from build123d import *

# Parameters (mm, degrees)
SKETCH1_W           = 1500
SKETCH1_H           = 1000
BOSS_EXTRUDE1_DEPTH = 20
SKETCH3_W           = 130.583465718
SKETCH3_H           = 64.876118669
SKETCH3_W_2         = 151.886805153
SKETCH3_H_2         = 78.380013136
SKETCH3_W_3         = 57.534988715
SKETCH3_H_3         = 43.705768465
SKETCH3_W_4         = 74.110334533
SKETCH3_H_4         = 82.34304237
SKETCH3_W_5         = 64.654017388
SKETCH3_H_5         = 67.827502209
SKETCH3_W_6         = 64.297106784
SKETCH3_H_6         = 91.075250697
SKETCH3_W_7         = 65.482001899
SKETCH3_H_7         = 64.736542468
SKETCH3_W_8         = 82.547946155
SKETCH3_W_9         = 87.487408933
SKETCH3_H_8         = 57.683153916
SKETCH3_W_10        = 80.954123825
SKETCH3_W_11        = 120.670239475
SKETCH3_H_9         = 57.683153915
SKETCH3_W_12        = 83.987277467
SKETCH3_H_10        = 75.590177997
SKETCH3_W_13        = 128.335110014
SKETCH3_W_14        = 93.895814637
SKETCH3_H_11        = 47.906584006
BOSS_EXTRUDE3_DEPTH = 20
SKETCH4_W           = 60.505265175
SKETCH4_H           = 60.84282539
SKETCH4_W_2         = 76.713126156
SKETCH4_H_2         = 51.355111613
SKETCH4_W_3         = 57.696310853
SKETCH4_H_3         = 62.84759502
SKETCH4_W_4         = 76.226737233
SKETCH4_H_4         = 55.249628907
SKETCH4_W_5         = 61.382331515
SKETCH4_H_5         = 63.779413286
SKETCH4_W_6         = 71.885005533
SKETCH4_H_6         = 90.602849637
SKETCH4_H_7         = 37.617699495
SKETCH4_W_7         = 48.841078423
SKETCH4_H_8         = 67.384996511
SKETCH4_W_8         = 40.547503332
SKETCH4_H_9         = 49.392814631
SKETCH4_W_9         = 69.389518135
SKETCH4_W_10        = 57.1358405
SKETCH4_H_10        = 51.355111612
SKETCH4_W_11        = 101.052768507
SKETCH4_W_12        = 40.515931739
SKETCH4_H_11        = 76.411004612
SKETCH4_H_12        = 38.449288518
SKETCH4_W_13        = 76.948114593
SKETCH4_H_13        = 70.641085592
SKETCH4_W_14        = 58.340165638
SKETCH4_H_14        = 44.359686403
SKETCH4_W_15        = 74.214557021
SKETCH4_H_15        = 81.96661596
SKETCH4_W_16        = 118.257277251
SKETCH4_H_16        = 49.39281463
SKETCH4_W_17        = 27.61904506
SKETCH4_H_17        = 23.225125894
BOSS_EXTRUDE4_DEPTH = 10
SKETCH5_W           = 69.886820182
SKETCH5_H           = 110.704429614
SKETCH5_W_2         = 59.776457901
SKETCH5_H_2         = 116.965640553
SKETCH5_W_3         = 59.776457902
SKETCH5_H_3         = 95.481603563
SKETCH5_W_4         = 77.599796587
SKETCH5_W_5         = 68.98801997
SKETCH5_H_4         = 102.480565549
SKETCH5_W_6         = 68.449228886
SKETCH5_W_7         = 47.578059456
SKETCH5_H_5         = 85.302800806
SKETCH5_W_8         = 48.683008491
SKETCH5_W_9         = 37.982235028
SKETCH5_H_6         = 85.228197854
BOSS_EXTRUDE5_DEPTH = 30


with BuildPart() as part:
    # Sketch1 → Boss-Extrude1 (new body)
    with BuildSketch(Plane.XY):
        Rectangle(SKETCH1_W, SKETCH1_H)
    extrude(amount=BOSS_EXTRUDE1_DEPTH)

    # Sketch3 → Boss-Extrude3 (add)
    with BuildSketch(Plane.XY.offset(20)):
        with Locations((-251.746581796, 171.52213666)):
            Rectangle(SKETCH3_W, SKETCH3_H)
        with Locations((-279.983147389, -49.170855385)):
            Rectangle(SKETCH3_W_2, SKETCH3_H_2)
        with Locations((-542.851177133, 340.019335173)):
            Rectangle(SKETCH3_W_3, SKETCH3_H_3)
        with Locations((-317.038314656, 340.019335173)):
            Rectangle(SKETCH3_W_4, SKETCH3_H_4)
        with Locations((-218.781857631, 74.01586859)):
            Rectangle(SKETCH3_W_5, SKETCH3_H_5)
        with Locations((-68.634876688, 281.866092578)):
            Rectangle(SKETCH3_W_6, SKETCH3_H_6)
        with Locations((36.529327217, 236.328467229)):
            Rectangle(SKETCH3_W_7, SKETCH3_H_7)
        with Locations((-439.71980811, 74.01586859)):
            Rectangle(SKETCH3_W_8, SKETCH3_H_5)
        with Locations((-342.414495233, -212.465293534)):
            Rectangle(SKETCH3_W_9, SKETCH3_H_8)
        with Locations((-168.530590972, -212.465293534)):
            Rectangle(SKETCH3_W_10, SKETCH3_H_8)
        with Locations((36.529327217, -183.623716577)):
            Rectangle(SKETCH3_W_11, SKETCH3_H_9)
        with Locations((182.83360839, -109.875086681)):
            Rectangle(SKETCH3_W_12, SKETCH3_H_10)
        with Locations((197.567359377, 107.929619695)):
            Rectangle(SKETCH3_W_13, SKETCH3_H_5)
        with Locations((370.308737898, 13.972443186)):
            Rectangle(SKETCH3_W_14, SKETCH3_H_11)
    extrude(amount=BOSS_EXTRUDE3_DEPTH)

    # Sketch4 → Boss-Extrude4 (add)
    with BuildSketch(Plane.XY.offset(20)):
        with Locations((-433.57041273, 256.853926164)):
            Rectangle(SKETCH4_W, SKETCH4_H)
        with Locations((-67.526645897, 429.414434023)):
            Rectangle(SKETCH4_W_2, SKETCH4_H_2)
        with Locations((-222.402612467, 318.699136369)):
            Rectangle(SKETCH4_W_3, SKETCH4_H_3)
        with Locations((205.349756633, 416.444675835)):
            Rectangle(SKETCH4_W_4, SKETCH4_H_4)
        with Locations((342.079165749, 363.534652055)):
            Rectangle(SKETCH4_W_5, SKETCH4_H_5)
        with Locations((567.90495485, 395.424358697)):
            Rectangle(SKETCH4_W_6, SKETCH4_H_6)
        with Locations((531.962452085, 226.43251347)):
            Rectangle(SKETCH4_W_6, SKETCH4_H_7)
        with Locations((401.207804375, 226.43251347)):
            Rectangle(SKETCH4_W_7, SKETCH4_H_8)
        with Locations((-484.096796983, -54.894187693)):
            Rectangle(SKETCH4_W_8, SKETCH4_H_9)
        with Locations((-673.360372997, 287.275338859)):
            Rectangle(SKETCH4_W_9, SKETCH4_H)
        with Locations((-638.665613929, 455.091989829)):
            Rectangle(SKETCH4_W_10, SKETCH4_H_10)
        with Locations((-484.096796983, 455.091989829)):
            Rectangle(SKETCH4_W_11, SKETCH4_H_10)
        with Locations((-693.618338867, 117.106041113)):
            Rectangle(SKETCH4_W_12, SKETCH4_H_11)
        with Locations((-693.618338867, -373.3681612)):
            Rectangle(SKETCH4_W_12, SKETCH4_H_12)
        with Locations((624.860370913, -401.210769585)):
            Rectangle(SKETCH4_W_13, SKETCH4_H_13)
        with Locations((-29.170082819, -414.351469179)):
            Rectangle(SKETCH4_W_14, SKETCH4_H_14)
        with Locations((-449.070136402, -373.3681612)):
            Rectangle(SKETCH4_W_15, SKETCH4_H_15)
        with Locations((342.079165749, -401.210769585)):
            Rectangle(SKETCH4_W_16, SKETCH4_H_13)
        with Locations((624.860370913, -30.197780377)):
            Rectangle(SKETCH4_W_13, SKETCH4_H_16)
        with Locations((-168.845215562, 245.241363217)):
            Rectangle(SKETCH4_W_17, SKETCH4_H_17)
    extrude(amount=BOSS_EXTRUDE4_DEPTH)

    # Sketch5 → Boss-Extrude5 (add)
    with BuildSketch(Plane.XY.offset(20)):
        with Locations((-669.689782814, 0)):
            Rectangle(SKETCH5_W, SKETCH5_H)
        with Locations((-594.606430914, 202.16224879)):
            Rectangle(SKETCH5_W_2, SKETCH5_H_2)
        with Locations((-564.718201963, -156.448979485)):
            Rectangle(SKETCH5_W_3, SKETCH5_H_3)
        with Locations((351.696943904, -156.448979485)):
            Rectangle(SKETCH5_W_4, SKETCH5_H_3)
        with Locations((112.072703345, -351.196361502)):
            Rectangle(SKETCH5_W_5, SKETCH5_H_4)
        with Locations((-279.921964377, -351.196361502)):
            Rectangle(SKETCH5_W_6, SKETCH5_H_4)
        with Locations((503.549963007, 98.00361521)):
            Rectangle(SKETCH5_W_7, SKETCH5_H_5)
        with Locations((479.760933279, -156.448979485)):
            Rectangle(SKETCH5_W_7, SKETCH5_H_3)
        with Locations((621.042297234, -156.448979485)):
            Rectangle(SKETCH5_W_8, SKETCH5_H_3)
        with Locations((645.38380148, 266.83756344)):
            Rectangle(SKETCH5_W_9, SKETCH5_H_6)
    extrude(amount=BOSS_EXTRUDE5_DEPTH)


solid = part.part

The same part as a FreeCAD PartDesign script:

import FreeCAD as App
import Part
import Sketcher

V = App.Vector
Q = App.Units.Quantity


def add_polygon(sketch, points):
    """Adds a closed chain of lines whose ends are joined by coincident constraints."""
    first, n = sketch.GeometryCount, len(points)
    for a, b in zip(points, points[1:] + points[:1]):
        sketch.addGeometry(Part.LineSegment(App.Vector(*a, 0), App.Vector(*b, 0)), False)
    for i in range(n):
        sketch.addConstraint(Sketcher.Constraint("Coincident", first + i, 2, first + (i + 1) % n, 1))

doc = App.newDocument("Part")
body = doc.addObject("PartDesign::Body", "Body")

sketch1 = body.newObject("Sketcher::SketchObject", "Sketch")
sketch1.AttachmentSupport = (doc.getObject("XY_Plane"), [""])
sketch1.MapMode = "FlatFace"
add_polygon(sketch1, [(-750, 500), (-750, -500), (750, -500), (750, 500)])
sketch1.addConstraint(Sketcher.Constraint("Vertical", 0))
sketch1.addConstraint(Sketcher.Constraint("Horizontal", 1))
sketch1.addConstraint(Sketcher.Constraint("Vertical", 2))
sketch1.addConstraint(Sketcher.Constraint("Horizontal", 3))
sketch1.addConstraint(Sketcher.Constraint("Symmetric", 0, 2, 2, 2, -1, 1))
sketch1.addConstraint(Sketcher.Constraint("DistanceX", 1, 1, 1, 2, Q("1500 mm")))
sketch1.addConstraint(Sketcher.Constraint("DistanceY", 0, 2, 0, 1, Q("1000 mm")))
pad1 = body.newObject("PartDesign::Pad", "Pad")
pad1.Profile = sketch1
pad1.Length = 20

sketch2 = body.newObject("Sketcher::SketchObject", "Sketch001")
sketch2.AttachmentSupport = (doc.getObject("XY_Plane"), [""])
sketch2.MapMode = "FlatFace"
sketch2.AttachmentOffset = App.Placement(V(0, 0, 20), App.Rotation())
add_polygon(sketch2, [(-317, 204), (-317, 139), (-186, 139), (-186, 204)])
add_polygon(sketch2, [(-356, -10), (-356, -88), (-204, -88), (-204, -10)])
add_polygon(sketch2, [(-572, 362), (-572, 318), (-514, 318), (-514, 362)])
add_polygon(sketch2, [(-354, 381), (-354, 299), (-280, 299), (-280, 381)])
add_polygon(sketch2, [(-251, 108), (-251, 40), (-186, 40), (-186, 108)])
add_polygon(sketch2, [(-101, 327), (-101, 236), (-36, 236), (-36, 327)])
add_polygon(sketch2, [(4, 269), (4, 204), (69, 204), (69, 269)])
add_polygon(sketch2, [(-481, 108), (-481, 40), (-398, 40), (-398, 108)])
add_polygon(sketch2, [(-386, -184), (-386, -241), (-299, -241), (-299, -184)])
add_polygon(sketch2, [(-209, -184), (-209, -241), (-128, -241), (-128, -184)])
add_polygon(sketch2, [(-24, -155), (-24, -212), (97, -212), (97, -155)])
add_polygon(sketch2, [(141, -72), (141, -148), (225, -148), (225, -72)])
add_polygon(sketch2, [(133, 142), (133, 74), (262, 74), (262, 142)])
add_polygon(sketch2, [(323, 38), (323, -10), (417, -10), (417, 38)])
sketch2.addConstraint(Sketcher.Constraint("Vertical", 0))
sketch2.addConstraint(Sketcher.Constraint("Horizontal", 1))
sketch2.addConstraint(Sketcher.Constraint("Vertical", 2))
sketch2.addConstraint(Sketcher.Constraint("Horizontal", 3))
sketch2.addConstraint(Sketcher.Constraint("Vertical", 4))
sketch2.addConstraint(Sketcher.Constraint("Horizontal", 5))
sketch2.addConstraint(Sketcher.Constraint("Vertical", 6))
sketch2.addConstraint(Sketcher.Constraint("Horizontal", 7))
sketch2.addConstraint(Sketcher.Constraint("Vertical", 8))
sketch2.addConstraint(Sketcher.Constraint("Horizontal", 9))
sketch2.addConstraint(Sketcher.Constraint("Vertical", 10))
sketch2.addConstraint(Sketcher.Constraint("Horizontal", 11))
sketch2.addConstraint(Sketcher.Constraint("Vertical", 12))
sketch2.addConstraint(Sketcher.Constraint("Horizontal", 13))
sketch2.addConstraint(Sketcher.Constraint("Vertical", 14))
sketch2.addConstraint(Sketcher.Constraint("Horizontal", 15))
sketch2.addConstraint(Sketcher.Constraint("Vertical", 16))
sketch2.addConstraint(Sketcher.Constraint("Horizontal", 17))
sketch2.addConstraint(Sketcher.Constraint("Vertical", 18))
sketch2.addConstraint(Sketcher.Constraint("Horizontal", 19))
sketch2.addConstraint(Sketcher.Constraint("Vertical", 20))
sketch2.addConstraint(Sketcher.Constraint("Horizontal", 21))
sketch2.addConstraint(Sketcher.Constraint("Vertical", 22))
sketch2.addConstraint(Sketcher.Constraint("Horizontal", 23))
sketch2.addConstraint(Sketcher.Constraint("Vertical", 24))
sketch2.addConstraint(Sketcher.Constraint("Horizontal", 25))
sketch2.addConstraint(Sketcher.Constraint("Vertical", 26))
sketch2.addConstraint(Sketcher.Constraint("Horizontal", 27))
sketch2.addConstraint(Sketcher.Constraint("Vertical", 28))
sketch2.addConstraint(Sketcher.Constraint("Horizontal", 29))
sketch2.addConstraint(Sketcher.Constraint("Vertical", 30))
sketch2.addConstraint(Sketcher.Constraint("Horizontal", 31))
sketch2.addConstraint(Sketcher.Constraint("Vertical", 32))
sketch2.addConstraint(Sketcher.Constraint("Horizontal", 33))
sketch2.addConstraint(Sketcher.Constraint("Vertical", 34))
sketch2.addConstraint(Sketcher.Constraint("Horizontal", 35))
sketch2.addConstraint(Sketcher.Constraint("Vertical", 36))
sketch2.addConstraint(Sketcher.Constraint("Horizontal", 37))
sketch2.addConstraint(Sketcher.Constraint("Vertical", 38))
sketch2.addConstraint(Sketcher.Constraint("Horizontal", 39))
sketch2.addConstraint(Sketcher.Constraint("Vertical", 40))
sketch2.addConstraint(Sketcher.Constraint("Horizontal", 41))
sketch2.addConstraint(Sketcher.Constraint("Vertical", 42))
sketch2.addConstraint(Sketcher.Constraint("Horizontal", 43))
sketch2.addConstraint(Sketcher.Constraint("Vertical", 44))
sketch2.addConstraint(Sketcher.Constraint("Horizontal", 45))
sketch2.addConstraint(Sketcher.Constraint("Vertical", 46))
sketch2.addConstraint(Sketcher.Constraint("Horizontal", 47))
sketch2.addConstraint(Sketcher.Constraint("Vertical", 48))
sketch2.addConstraint(Sketcher.Constraint("Horizontal", 49))
sketch2.addConstraint(Sketcher.Constraint("Vertical", 50))
sketch2.addConstraint(Sketcher.Constraint("Horizontal", 51))
sketch2.addConstraint(Sketcher.Constraint("Vertical", 52))
sketch2.addConstraint(Sketcher.Constraint("Horizontal", 53))
sketch2.addConstraint(Sketcher.Constraint("Vertical", 54))
sketch2.addConstraint(Sketcher.Constraint("Horizontal", 55))
sketch2.addConstraint(Sketcher.Constraint("Horizontal", 3, 2, 24, 2))
sketch2.addConstraint(Sketcher.Constraint("Horizontal", 17, 2, 28, 2))
sketch2.addConstraint(Sketcher.Constraint("Horizontal", 19, 2, 30, 2))
sketch2.addConstraint(Sketcher.Constraint("Horizontal", 33, 2, 36, 2))
sketch2.addConstraint(Sketcher.Constraint("Horizontal", 35, 2, 38, 2))
sketch2.addConstraint(Sketcher.Constraint("Horizontal", 7, 2, 52, 2))
sketch2.addConstraint(Sketcher.Constraint("Vertical", 2, 2, 17, 2))
sketch2.addConstraint(Sketcher.Constraint("Equal", 38, 40))
sketch2.addConstraint(Sketcher.Constraint("Equal", 30, 48))
sketch2.addConstraint(Sketcher.Constraint("DistanceX", 25, 1, 25, 2, Q("65.482002 mm")))
sketch2.addConstraint(Sketcher.Constraint("DistanceX", 9, 1, 9, 2, Q("57.534989 mm")))
sketch2.addConstraint(Sketcher.Constraint("DistanceX", 33, 1, 33, 2, Q("87.487409 mm")))
sketch2.addConstraint(Sketcher.Constraint("DistanceX", 41, 1, 41, 2, Q("120.670239 mm")))
sketch2.addConstraint(Sketcher.Constraint("DistanceX", 49, 1, 49, 2, Q("128.33511 mm")))
sketch2.addConstraint(Sketcher.Constraint("DistanceY", 0, 2, 0, 1, Q("64.876119 mm")))
sketch2.addConstraint(Sketcher.Constraint("DistanceY", 8, 2, 8, 1, Q("43.705768 mm")))
sketch2.addConstraint(Sketcher.Constraint("DistanceY", 20, 2, 20, 1, Q("91.075251 mm")))
sketch2.addConstraint(Sketcher.Constraint("DistanceX", 32, 2, -1, 1, Q("386.1582 mm")))
sketch2.addConstraint(Sketcher.Constraint("DistanceX", 4, 2, 1, 2, Q("169.471701 mm")))
sketch2.addConstraint(Sketcher.Constraint("DistanceY", 7, 2, 8, 2, Q("328.1473 mm")))
sketch2.addConstraint(Sketcher.Constraint("DistanceX", 9, 2, 12, 2, Q("159.990201 mm")))
sketch2.addConstraint(Sketcher.Constraint("DistanceX", 13, 2, 2, 2, Q("93.528298 mm")))
sketch2.addConstraint(Sketcher.Constraint("DistanceX", 36, 2, 41, 2, Q("305.8721 mm")))
sketch2.addConstraint(Sketcher.Constraint("DistanceX", 38, 2, 44, 2, Q("268.893499 mm")))
sketch2.addConstraint(Sketcher.Constraint("DistanceX", 42, 2, 45, 2, Q("127.9628 mm")))
sketch2.addConstraint(Sketcher.Constraint("DistanceX", 46, 2, 53, 2, Q("192.429398 mm")))
sketch2.addConstraint(Sketcher.Constraint("DistanceX", 1, 1, 1, 2, Q("130.583466 mm")))
sketch2.addConstraint(Sketcher.Constraint("DistanceX", 5, 1, 5, 2, Q("151.886805 mm")))
sketch2.addConstraint(Sketcher.Constraint("DistanceX", 13, 1, 13, 2, Q("74.110335 mm")))
sketch2.addConstraint(Sketcher.Constraint("DistanceX", 17, 1, 17, 2, Q("64.654017 mm")))
sketch2.addConstraint(Sketcher.Constraint("DistanceX", 21, 1, 21, 2, Q("64.297107 mm")))
sketch2.addConstraint(Sketcher.Constraint("DistanceX", 29, 1, 29, 2, Q("82.547946 mm")))
sketch2.addConstraint(Sketcher.Constraint("DistanceX", 37, 1, 37, 2, Q("80.954124 mm")))
sketch2.addConstraint(Sketcher.Constraint("DistanceX", 53, 1, 53, 2, Q("93.895815 mm")))
sketch2.addConstraint(Sketcher.Constraint("DistanceY", 4, 2, 4, 1, Q("78.380013 mm")))
sketch2.addConstraint(Sketcher.Constraint("DistanceY", 12, 2, 12, 1, Q("82.343042 mm")))
sketch2.addConstraint(Sketcher.Constraint("DistanceY", 16, 2, 16, 1, Q("67.827502 mm")))
sketch2.addConstraint(Sketcher.Constraint("DistanceY", 24, 2, 24, 1, Q("64.736542 mm")))
sketch2.addConstraint(Sketcher.Constraint("DistanceY", 32, 2, 32, 1, Q("57.683154 mm")))
sketch2.addConstraint(Sketcher.Constraint("DistanceY", 44, 2, 44, 1, Q("75.590178 mm")))
sketch2.addConstraint(Sketcher.Constraint("DistanceY", 52, 2, 52, 1, Q("47.906584 mm")))
sketch2.addConstraint(Sketcher.Constraint("DistanceX", 1, 2, -1, 1, Q("186.454849 mm")))
sketch2.addConstraint(Sketcher.Constraint("DistanceY", 4, 2, -1, 1, Q("88.360862 mm")))
sketch2.addConstraint(Sketcher.Constraint("DistanceY", -1, 1, 18, 2, Q("107.92962 mm")))
sketch2.addConstraint(Sketcher.Constraint("DistanceX", 20, 2, -1, 1, Q("100.78343 mm")))
sketch2.addConstraint(Sketcher.Constraint("DistanceX", -1, 1, 25, 2, Q("69.270328 mm")))
sketch2.addConstraint(Sketcher.Constraint("DistanceY", -1, 1, 26, 2, Q("268.696738 mm")))
sketch2.addConstraint(Sketcher.Constraint("DistanceX", 28, 2, -1, 1, Q("480.993781 mm")))
sketch2.addConstraint(Sketcher.Constraint("DistanceY", 32, 2, -1, 1, Q("241.30687 mm")))
sketch2.addConstraint(Sketcher.Constraint("DistanceX", 37, 2, -1, 1, Q("128.053529 mm")))
sketch2.addConstraint(Sketcher.Constraint("DistanceY", 42, 2, -1, 1, Q("154.78214 mm")))
sketch2.addConstraint(Sketcher.Constraint("DistanceY", -1, 1, 48, 2, Q("74.015869 mm")))
sketch2.addConstraint(Sketcher.Constraint("DistanceY", 3, 2, 14, 2, Q("177.23066 mm")))
sketch2.addConstraint(Sketcher.Constraint("DistanceY", 2, 2, 20, 2, Q("32.368271 mm")))
sketch2.addConstraint(Sketcher.Constraint("DistanceY", 38, 2, 44, 2, Q("35.953541 mm")))
sketch2.addConstraint(Sketcher.Constraint("DistanceX", 24, 2, 48, 2, Q("129.611478 mm")))
pad2 = body.newObject("PartDesign::Pad", "Pad001")
pad2.Profile = sketch2
pad2.Length = 20

sketch3 = body.newObject("Sketcher::SketchObject", "Sketch002")
sketch3.AttachmentSupport = (doc.getObject("XY_Plane"), [""])
sketch3.MapMode = "FlatFace"
sketch3.AttachmentOffset = App.Placement(V(0, 0, 20), App.Rotation())
add_polygon(sketch3, [(-464, 287), (-464, 226), (-403, 226), (-403, 287)])
add_polygon(sketch3, [(-106, 455), (-106, 404), (-29, 404), (-29, 455)])
add_polygon(sketch3, [(-251, 350), (-251, 287), (-194, 287), (-194, 350)])
add_polygon(sketch3, [(167, 444), (167, 389), (243, 389), (243, 444)])
add_polygon(sketch3, [(311, 395), (311, 332), (373, 332), (373, 395)])
add_polygon(sketch3, [(532, 441), (532, 350), (604, 350), (604, 441)])
add_polygon(sketch3, [(496, 245), (496, 208), (568, 208), (568, 245)])
add_polygon(sketch3, [(377, 260), (377, 193), (426, 193), (426, 260)])
add_polygon(sketch3, [(-504, -30), (-504, -80), (-464, -80), (-464, -30)])
add_polygon(sketch3, [(-708, 318), (-708, 257), (-639, 257), (-639, 318)])
add_polygon(sketch3, [(-667, 481), (-667, 429), (-610, 429), (-610, 481)])
add_polygon(sketch3, [(-535, 481), (-535, 429), (-434, 429), (-434, 481)])
add_polygon(sketch3, [(-714, 155), (-714, 79), (-673, 79), (-673, 155)])
add_polygon(sketch3, [(-714, -354), (-714, -393), (-673, -393), (-673, -354)])
add_polygon(sketch3, [(586, -366), (586, -437), (663, -437), (663, -366)])
add_polygon(sketch3, [(-58, -392), (-58, -437), (0, -437), (0, -392)])
add_polygon(sketch3, [(-486, -332), (-486, -414), (-412, -414), (-412, -332)])
add_polygon(sketch3, [(283, -366), (283, -437), (401, -437), (401, -366)])
add_polygon(sketch3, [(586, -6), (586, -55), (663, -55), (663, -6)])
add_polygon(sketch3, [(-183, 257), (-183, 234), (-155, 234), (-155, 257)])
sketch3.addConstraint(Sketcher.Constraint("Vertical", 0))
sketch3.addConstraint(Sketcher.Constraint("Horizontal", 1))
sketch3.addConstraint(Sketcher.Constraint("Vertical", 2))
sketch3.addConstraint(Sketcher.Constraint("Horizontal", 3))
sketch3.addConstraint(Sketcher.Constraint("Vertical", 4))
sketch3.addConstraint(Sketcher.Constraint("Horizontal", 5))
sketch3.addConstraint(Sketcher.Constraint("Vertical", 6))
sketch3.addConstraint(Sketcher.Constraint("Horizontal", 7))
sketch3.addConstraint(Sketcher.Constraint("Vertical", 8))
sketch3.addConstraint(Sketcher.Constraint("Horizontal", 9))
sketch3.addConstraint(Sketcher.Constraint("Vertical", 10))
sketch3.addConstraint(Sketcher.Constraint("Horizontal", 11))
sketch3.addConstraint(Sketcher.Constraint("Vertical", 12))
sketch3.addConstraint(Sketcher.Constraint("Horizontal", 13))
sketch3.addConstraint(Sketcher.Constraint("Vertical", 14))
sketch3.addConstraint(Sketcher.Constraint("Horizontal", 15))
sketch3.addConstraint(Sketcher.Constraint("Vertical", 16))
sketch3.addConstraint(Sketcher.Constraint("Horizontal", 17))
sketch3.addConstraint(Sketcher.Constraint("Vertical", 18))
sketch3.addConstraint(Sketcher.Constraint("Horizontal", 19))
sketch3.addConstraint(Sketcher.Constraint("Vertical", 20))
sketch3.addConstraint(Sketcher.Constraint("Horizontal", 21))
sketch3.addConstraint(Sketcher.Constraint("Vertical", 22))
sketch3.addConstraint(Sketcher.Constraint("Horizontal", 23))
sketch3.addConstraint(Sketcher.Constraint("Vertical", 24))
sketch3.addConstraint(Sketcher.Constraint("Horizontal", 25))
sketch3.addConstraint(Sketcher.Constraint("Vertical", 26))
sketch3.addConstraint(Sketcher.Constraint("Horizontal", 27))
sketch3.addConstraint(Sketcher.Constraint("Vertical", 28))
sketch3.addConstraint(Sketcher.Constraint("Horizontal", 29))
sketch3.addConstraint(Sketcher.Constraint("Vertical", 30))
sketch3.addConstraint(Sketcher.Constraint("Horizontal", 31))
sketch3.addConstraint(Sketcher.Constraint("Vertical", 32))
sketch3.addConstraint(Sketcher.Constraint("Horizontal", 33))
sketch3.addConstraint(Sketcher.Constraint("Vertical", 34))
sketch3.addConstraint(Sketcher.Constraint("Horizontal", 35))
sketch3.addConstraint(Sketcher.Constraint("Vertical", 36))
sketch3.addConstraint(Sketcher.Constraint("Horizontal", 37))
sketch3.addConstraint(Sketcher.Constraint("Vertical", 38))
sketch3.addConstraint(Sketcher.Constraint("Horizontal", 39))
sketch3.addConstraint(Sketcher.Constraint("Vertical", 40))
sketch3.addConstraint(Sketcher.Constraint("Horizontal", 41))
sketch3.addConstraint(Sketcher.Constraint("Vertical", 42))
sketch3.addConstraint(Sketcher.Constraint("Horizontal", 43))
sketch3.addConstraint(Sketcher.Constraint("Vertical", 44))
sketch3.addConstraint(Sketcher.Constraint("Horizontal", 45))
sketch3.addConstraint(Sketcher.Constraint("Vertical", 46))
sketch3.addConstraint(Sketcher.Constraint("Horizontal", 47))
sketch3.addConstraint(Sketcher.Constraint("Vertical", 48))
sketch3.addConstraint(Sketcher.Constraint("Horizontal", 49))
sketch3.addConstraint(Sketcher.Constraint("Vertical", 50))
sketch3.addConstraint(Sketcher.Constraint("Horizontal", 51))
sketch3.addConstraint(Sketcher.Constraint("Vertical", 52))
sketch3.addConstraint(Sketcher.Constraint("Horizontal", 53))
sketch3.addConstraint(Sketcher.Constraint("Vertical", 54))
sketch3.addConstraint(Sketcher.Constraint("Horizontal", 55))
sketch3.addConstraint(Sketcher.Constraint("Vertical", 56))
sketch3.addConstraint(Sketcher.Constraint("Horizontal", 57))
sketch3.addConstraint(Sketcher.Constraint("Vertical", 58))
sketch3.addConstraint(Sketcher.Constraint("Horizontal", 59))
sketch3.addConstraint(Sketcher.Constraint("Vertical", 60))
sketch3.addConstraint(Sketcher.Constraint("Horizontal", 61))
sketch3.addConstraint(Sketcher.Constraint("Vertical", 62))
sketch3.addConstraint(Sketcher.Constraint("Horizontal", 63))
sketch3.addConstraint(Sketcher.Constraint("Vertical", 64))
sketch3.addConstraint(Sketcher.Constraint("Horizontal", 65))
sketch3.addConstraint(Sketcher.Constraint("Vertical", 66))
sketch3.addConstraint(Sketcher.Constraint("Horizontal", 67))
sketch3.addConstraint(Sketcher.Constraint("Vertical", 68))
sketch3.addConstraint(Sketcher.Constraint("Horizontal", 69))
sketch3.addConstraint(Sketcher.Constraint("Vertical", 70))
sketch3.addConstraint(Sketcher.Constraint("Horizontal", 71))
sketch3.addConstraint(Sketcher.Constraint("Vertical", 72))
sketch3.addConstraint(Sketcher.Constraint("Horizontal", 73))
sketch3.addConstraint(Sketcher.Constraint("Vertical", 74))
sketch3.addConstraint(Sketcher.Constraint("Horizontal", 75))
sketch3.addConstraint(Sketcher.Constraint("Vertical", 76))
sketch3.addConstraint(Sketcher.Constraint("Horizontal", 77))
sketch3.addConstraint(Sketcher.Constraint("Vertical", 78))
sketch3.addConstraint(Sketcher.Constraint("Horizontal", 79))
sketch3.addConstraint(Sketcher.Constraint("PointOnObject", 61, 2, -2))
sketch3.addConstraint(Sketcher.Constraint("Horizontal", 3, 2, 8, 2))
sketch3.addConstraint(Sketcher.Constraint("Horizontal", 11, 2, 20, 2))
sketch3.addConstraint(Sketcher.Constraint("Horizontal", 41, 2, 44, 2))
sketch3.addConstraint(Sketcher.Constraint("Horizontal", 43, 2, 46, 2))
sketch3.addConstraint(Sketcher.Constraint("Horizontal", 57, 2, 60, 2))
sketch3.addConstraint(Sketcher.Constraint("Horizontal", 61, 2, 68, 2))
sketch3.addConstraint(Sketcher.Constraint("Horizontal", 59, 2, 70, 2))
sketch3.addConstraint(Sketcher.Constraint("Horizontal", 37, 2, 78, 2))
sketch3.addConstraint(Sketcher.Constraint("Vertical", 3, 2, 33, 2))
sketch3.addConstraint(Sketcher.Constraint("Vertical", 51, 2, 52, 2))
sketch3.addConstraint(Sketcher.Constraint("Vertical", 50, 2, 53, 2))
sketch3.addConstraint(Sketcher.Constraint("Vertical", 59, 2, 72, 2))
sketch3.addConstraint(Sketcher.Constraint("Vertical", 58, 2, 73, 2))
sketch3.addConstraint(Sketcher.Constraint("Equal", 23, 25))
sketch3.addConstraint(Sketcher.Constraint("Equal", 2, 36))
sketch3.addConstraint(Sketcher.Constraint("Equal", 6, 40))
sketch3.addConstraint(Sketcher.Constraint("Equal", 34, 72))
sketch3.addConstraint(Sketcher.Constraint("DistanceY", 24, 2, 24, 1, Q("37.617699 mm")))
sketch3.addConstraint(Sketcher.Constraint("DistanceX", -1, 1, 16, 2, Q("311.388 mm")))
sketch3.addConstraint(Sketcher.Constraint("DistanceX", 9, 1, 9, 2, Q("57.696311 mm")))
sketch3.addConstraint(Sketcher.Constraint("DistanceX", 17, 1, 17, 2, Q("61.382332 mm")))
sketch3.addConstraint(Sketcher.Constraint("DistanceX", 29, 1, 29, 2, Q("48.841078 mm")))
sketch3.addConstraint(Sketcher.Constraint("DistanceX", 37, 1, 37, 2, Q("69.389518 mm")))
sketch3.addConstraint(Sketcher.Constraint("DistanceX", 41, 1, 41, 2, Q("57.13584 mm")))
sketch3.addConstraint(Sketcher.Constraint("DistanceX", 45, 1, 45, 2, Q("101.052769 mm")))
sketch3.addConstraint(Sketcher.Constraint("DistanceX", 49, 1, 49, 2, Q("40.515932 mm")))
sketch3.addConstraint(Sketcher.Constraint("DistanceY", 4, 2, 4, 1, Q("51.355112 mm")))
sketch3.addConstraint(Sketcher.Constraint("DistanceY", 12, 2, 12, 1, Q("55.249629 mm")))
sketch3.addConstraint(Sketcher.Constraint("DistanceY", 20, 2, 20, 1, Q("90.60285 mm")))
sketch3.addConstraint(Sketcher.Constraint("DistanceY", 52, 2, 52, 1, Q("38.449289 mm")))
sketch3.addConstraint(Sketcher.Constraint("DistanceY", -1, 1, 76, 2, Q("233.6288 mm")))
sketch3.addConstraint(Sketcher.Constraint("DistanceX", 1, 1, 1, 2, Q("60.505265 mm")))
sketch3.addConstraint(Sketcher.Constraint("DistanceX", 5, 1, 5, 2, Q("76.713126 mm")))
sketch3.addConstraint(Sketcher.Constraint("DistanceX", 13, 1, 13, 2, Q("76.226737 mm")))
sketch3.addConstraint(Sketcher.Constraint("DistanceX", 21, 1, 21, 2, Q("71.885006 mm")))
sketch3.addConstraint(Sketcher.Constraint("DistanceX", 33, 1, 33, 2, Q("40.547503 mm")))
sketch3.addConstraint(Sketcher.Constraint("DistanceX", 57, 1, 57, 2, Q("76.948115 mm")))
sketch3.addConstraint(Sketcher.Constraint("DistanceX", 61, 1, 61, 2, Q("58.340166 mm")))
sketch3.addConstraint(Sketcher.Constraint("DistanceX", 65, 1, 65, 2, Q("74.214557 mm")))
sketch3.addConstraint(Sketcher.Constraint("DistanceX", 69, 1, 69, 2, Q("118.257277 mm")))
sketch3.addConstraint(Sketcher.Constraint("DistanceX", 77, 1, 77, 2, Q("27.619045 mm")))
sketch3.addConstraint(Sketcher.Constraint("DistanceY", 0, 2, 0, 1, Q("60.842825 mm")))
sketch3.addConstraint(Sketcher.Constraint("DistanceY", 8, 2, 8, 1, Q("62.847595 mm")))
sketch3.addConstraint(Sketcher.Constraint("DistanceY", 16, 2, 16, 1, Q("63.779413 mm")))
sketch3.addConstraint(Sketcher.Constraint("DistanceY", 28, 2, 28, 1, Q("67.384997 mm")))
sketch3.addConstraint(Sketcher.Constraint("DistanceY", 32, 2, 32, 1, Q("49.392815 mm")))
sketch3.addConstraint(Sketcher.Constraint("DistanceY", 48, 2, 48, 1, Q("76.411005 mm")))
sketch3.addConstraint(Sketcher.Constraint("DistanceY", 56, 2, 56, 1, Q("70.641086 mm")))
sketch3.addConstraint(Sketcher.Constraint("DistanceY", 60, 2, 60, 1, Q("44.359686 mm")))
sketch3.addConstraint(Sketcher.Constraint("DistanceY", 64, 2, 64, 1, Q("81.966616 mm")))
sketch3.addConstraint(Sketcher.Constraint("DistanceY", 76, 2, 76, 1, Q("23.225126 mm")))
sketch3.addConstraint(Sketcher.Constraint("DistanceX", 1, 2, -1, 1, Q("403.31778 mm")))
sketch3.addConstraint(Sketcher.Constraint("DistanceY", -1, 1, 2, 2, Q("287.275339 mm")))
sketch3.addConstraint(Sketcher.Constraint("DistanceX", 4, 2, -1, 1, Q("105.883209 mm")))
sketch3.addConstraint(Sketcher.Constraint("DistanceY", -1, 1, 4, 2, Q("403.736878 mm")))
sketch3.addConstraint(Sketcher.Constraint("DistanceX", -1, 1, 12, 2, Q("167.236388 mm")))
sketch3.addConstraint(Sketcher.Constraint("DistanceY", -1, 1, 12, 2, Q("388.819861 mm")))
sketch3.addConstraint(Sketcher.Constraint("DistanceY", -1, 1, 18, 2, Q("395.424359 mm")))
sketch3.addConstraint(Sketcher.Constraint("DistanceX", -1, 1, 24, 2, Q("496.019949 mm")))
sketch3.addConstraint(Sketcher.Constraint("DistanceY", -1, 1, 30, 2, Q("260.125012 mm")))
sketch3.addConstraint(Sketcher.Constraint("DistanceY", 34, 2, -1, 1, Q("30.19778 mm")))
sketch3.addConstraint(Sketcher.Constraint("DistanceX", 44, 2, -1, 1, Q("534.623181 mm")))
sketch3.addConstraint(Sketcher.Constraint("DistanceY", -1, 1, 48, 2, Q("78.900539 mm")))
sketch3.addConstraint(Sketcher.Constraint("DistanceX", -1, 1, 57, 2, Q("663.334428 mm")))
sketch3.addConstraint(Sketcher.Constraint("DistanceY", 64, 2, -1, 1, Q("414.351469 mm")))
sketch3.addConstraint(Sketcher.Constraint("DistanceX", 76, 2, -1, 1, Q("182.654738 mm")))
sketch3.addConstraint(Sketcher.Constraint("DistanceX", 8, 2, -1, 1, Q("251.250768 mm")))
sketch3.addConstraint(Sketcher.Constraint("DistanceX", -1, 1, 20, 2, Q("531.962452 mm")))
sketch3.addConstraint(Sketcher.Constraint("DistanceY", -1, 1, 24, 2, Q("207.623664 mm")))
sketch3.addConstraint(Sketcher.Constraint("DistanceX", -1, 1, 28, 2, Q("376.787265 mm")))
sketch3.addConstraint(Sketcher.Constraint("DistanceX", 36, 2, -1, 1, Q("708.055132 mm")))
sketch3.addConstraint(Sketcher.Constraint("DistanceX", 40, 2, -1, 1, Q("667.233534 mm")))
sketch3.addConstraint(Sketcher.Constraint("DistanceY", -1, 1, 40, 2, Q("429.414434 mm")))
sketch3.addConstraint(Sketcher.Constraint("DistanceX", 48, 2, -1, 1, Q("713.876305 mm")))
sketch3.addConstraint(Sketcher.Constraint("DistanceY", 52, 2, -1, 1, Q("392.592805 mm")))
sketch3.addConstraint(Sketcher.Constraint("DistanceY", 56, 2, -1, 1, Q("436.531312 mm")))
sketch3.addConstraint(Sketcher.Constraint("DistanceX", 64, 2, -1, 1, Q("486.177415 mm")))
sketch3.addConstraint(Sketcher.Constraint("DistanceX", -1, 1, 68, 2, Q("282.950527 mm")))
sketch3.addConstraint(Sketcher.Constraint("DistanceY", 72, 2, -1, 1, Q("54.894188 mm")))
pad3 = body.newObject("PartDesign::Pad", "Pad002")
pad3.Profile = sketch3
pad3.Length = 10

sketch4 = body.newObject("Sketcher::SketchObject", "Sketch003")
sketch4.AttachmentSupport = (doc.getObject("XY_Plane"), [""])
sketch4.MapMode = "FlatFace"
sketch4.AttachmentOffset = App.Placement(V(0, 0, 20), App.Rotation())
add_polygon(sketch4, [(-705, 55), (-705, -55), (-635, -55), (-635, 55)])
add_polygon(sketch4, [(-624, 261), (-624, 144), (-565, 144), (-565, 261)])
add_polygon(sketch4, [(-595, -109), (-595, -204), (-535, -204), (-535, -109)])
add_polygon(sketch4, [(313, -109), (313, -204), (390, -204), (390, -109)])
add_polygon(sketch4, [(78, -300), (78, -402), (147, -402), (147, -300)])
add_polygon(sketch4, [(-314, -300), (-314, -402), (-246, -402), (-246, -300)])
add_polygon(sketch4, [(480, 141), (480, 55), (527, 55), (527, 141)])
add_polygon(sketch4, [(456, -109), (456, -204), (504, -204), (504, -109)])
add_polygon(sketch4, [(597, -109), (597, -204), (645, -204), (645, -109)])
add_polygon(sketch4, [(626, 309), (626, 224), (664, 224), (664, 309)])
sketch4.addConstraint(Sketcher.Constraint("Vertical", 0))
sketch4.addConstraint(Sketcher.Constraint("Horizontal", 1))
sketch4.addConstraint(Sketcher.Constraint("Vertical", 2))
sketch4.addConstraint(Sketcher.Constraint("Horizontal", 3))
sketch4.addConstraint(Sketcher.Constraint("Vertical", 4))
sketch4.addConstraint(Sketcher.Constraint("Horizontal", 5))
sketch4.addConstraint(Sketcher.Constraint("Vertical", 6))
sketch4.addConstraint(Sketcher.Constraint("Horizontal", 7))
sketch4.addConstraint(Sketcher.Constraint("Vertical", 8))
sketch4.addConstraint(Sketcher.Constraint("Horizontal", 9))
sketch4.addConstraint(Sketcher.Constraint("Vertical", 10))
sketch4.addConstraint(Sketcher.Constraint("Horizontal", 11))
sketch4.addConstraint(Sketcher.Constraint("Vertical", 12))
sketch4.addConstraint(Sketcher.Constraint("Horizontal", 13))
sketch4.addConstraint(Sketcher.Constraint("Vertical", 14))
sketch4.addConstraint(Sketcher.Constraint("Horizontal", 15))
sketch4.addConstraint(Sketcher.Constraint("Vertical", 16))
sketch4.addConstraint(Sketcher.Constraint("Horizontal", 17))
sketch4.addConstraint(Sketcher.Constraint("Vertical", 18))
sketch4.addConstraint(Sketcher.Constraint("Horizontal", 19))
sketch4.addConstraint(Sketcher.Constraint("Vertical", 20))
sketch4.addConstraint(Sketcher.Constraint("Horizontal", 21))
sketch4.addConstraint(Sketcher.Constraint("Vertical", 22))
sketch4.addConstraint(Sketcher.Constraint("Horizontal", 23))
sketch4.addConstraint(Sketcher.Constraint("Vertical", 24))
sketch4.addConstraint(Sketcher.Constraint("Horizontal", 25))
sketch4.addConstraint(Sketcher.Constraint("Vertical", 26))
sketch4.addConstraint(Sketcher.Constraint("Horizontal", 27))
sketch4.addConstraint(Sketcher.Constraint("Vertical", 28))
sketch4.addConstraint(Sketcher.Constraint("Horizontal", 29))
sketch4.addConstraint(Sketcher.Constraint("Vertical", 30))
sketch4.addConstraint(Sketcher.Constraint("Horizontal", 31))
sketch4.addConstraint(Sketcher.Constraint("Vertical", 32))
sketch4.addConstraint(Sketcher.Constraint("Horizontal", 33))
sketch4.addConstraint(Sketcher.Constraint("Vertical", 34))
sketch4.addConstraint(Sketcher.Constraint("Horizontal", 35))
sketch4.addConstraint(Sketcher.Constraint("Vertical", 36))
sketch4.addConstraint(Sketcher.Constraint("Horizontal", 37))
sketch4.addConstraint(Sketcher.Constraint("Vertical", 38))
sketch4.addConstraint(Sketcher.Constraint("Horizontal", 39))
sketch4.addConstraint(Sketcher.Constraint("Horizontal", 9, 2, 12, 2))
sketch4.addConstraint(Sketcher.Constraint("Horizontal", 11, 2, 14, 2))
sketch4.addConstraint(Sketcher.Constraint("Horizontal", 17, 2, 20, 2))
sketch4.addConstraint(Sketcher.Constraint("Horizontal", 19, 2, 22, 2))
sketch4.addConstraint(Sketcher.Constraint("Horizontal", 3, 2, 24, 2))
sketch4.addConstraint(Sketcher.Constraint("Horizontal", 13, 2, 28, 2))
sketch4.addConstraint(Sketcher.Constraint("Horizontal", 15, 2, 30, 2))
sketch4.addConstraint(Sketcher.Constraint("Horizontal", 29, 2, 32, 2))
sketch4.addConstraint(Sketcher.Constraint("Horizontal", 31, 2, 34, 2))
sketch4.addConstraint(Sketcher.Constraint("Equal", 7, 9))
sketch4.addConstraint(Sketcher.Constraint("Equal", 27, 29))
sketch4.addConstraint(Sketcher.Constraint("DistanceY", 24, 2, 24, 1, Q("85.302801 mm")))
sketch4.addConstraint(Sketcher.Constraint("DistanceX", 1, 1, 1, 2, Q("69.88682 mm")))
sketch4.addConstraint(Sketcher.Constraint("DistanceX", 17, 1, 17, 2, Q("68.98802 mm")))
sketch4.addConstraint(Sketcher.Constraint("DistanceX", 21, 1, 21, 2, Q("68.449229 mm")))
sketch4.addConstraint(Sketcher.Constraint("DistanceX", 25, 1, 25, 2, Q("47.578059 mm")))
sketch4.addConstraint(Sketcher.Constraint("DistanceX", 33, 1, 33, 2, Q("48.683008 mm")))
sketch4.addConstraint(Sketcher.Constraint("DistanceY", 0, 2, 0, 1, Q("110.70443 mm")))
sketch4.addConstraint(Sketcher.Constraint("DistanceY", 4, 2, 4, 1, Q("116.965641 mm")))
sketch4.addConstraint(Sketcher.Constraint("DistanceX", 5, 2, -1, 1, Q("564.718202 mm")))
sketch4.addConstraint(Sketcher.Constraint("DistanceX", -1, 1, 33, 2, Q("645.383801 mm")))
sketch4.addConstraint(Sketcher.Constraint("DistanceX", 1, 2, 9, 2, Q("99.9164 mm")))
sketch4.addConstraint(Sketcher.Constraint("DistanceY", 18, 2, 15, 2, Q("191.247901 mm")))
sketch4.addConstraint(Sketcher.Constraint("DistanceX", 5, 1, 5, 2, Q("59.776458 mm")))
sketch4.addConstraint(Sketcher.Constraint("DistanceX", 13, 1, 13, 2, Q("77.599797 mm")))
sketch4.addConstraint(Sketcher.Constraint("DistanceX", 37, 1, 37, 2, Q("37.982235 mm")))
sketch4.addConstraint(Sketcher.Constraint("DistanceY", 8, 2, 8, 1, Q("95.481604 mm")))
sketch4.addConstraint(Sketcher.Constraint("DistanceY", 16, 2, 16, 1, Q("102.480566 mm")))
sketch4.addConstraint(Sketcher.Constraint("DistanceY", 36, 2, 36, 1, Q("85.228198 mm")))
sketch4.addConstraint(Sketcher.Constraint("DistanceY", -1, 1, 4, 2, Q("143.679429 mm")))
sketch4.addConstraint(Sketcher.Constraint("DistanceX", 8, 2, -1, 1, Q("594.606431 mm")))
sketch4.addConstraint(Sketcher.Constraint("DistanceY", 8, 2, -1, 1, Q("204.189781 mm")))
sketch4.addConstraint(Sketcher.Constraint("DistanceX", 20, 2, -1, 1, Q("314.146579 mm")))
sketch4.addConstraint(Sketcher.Constraint("DistanceX", -1, 1, 37, 2, Q("664.374919 mm")))
sketch4.addConstraint(Sketcher.Constraint("DistanceX", 9, 2, 12, 2, Q("847.727019 mm")))
sketch4.addConstraint(Sketcher.Constraint("DistanceX", 16, 2, 13, 2, Q("312.918149 mm")))
sketch4.addConstraint(Sketcher.Constraint("DistanceX", 14, 2, 24, 2, Q("89.264091 mm")))
sketch4.addConstraint(Sketcher.Constraint("DistanceX", 13, 2, 28, 2, Q("65.475061 mm")))
sketch4.addConstraint(Sketcher.Constraint("DistanceY", 26, 2, 36, 2, Q("83.568449 mm")))
sketch4.addConstraint(Sketcher.Constraint("DistanceY", 0, 2, -1, 1, Q("55.352215 mm")))
pad4 = body.newObject("PartDesign::Pad", "Pad003")
pad4.Profile = sketch4
pad4.Length = 30

doc.recompute()
